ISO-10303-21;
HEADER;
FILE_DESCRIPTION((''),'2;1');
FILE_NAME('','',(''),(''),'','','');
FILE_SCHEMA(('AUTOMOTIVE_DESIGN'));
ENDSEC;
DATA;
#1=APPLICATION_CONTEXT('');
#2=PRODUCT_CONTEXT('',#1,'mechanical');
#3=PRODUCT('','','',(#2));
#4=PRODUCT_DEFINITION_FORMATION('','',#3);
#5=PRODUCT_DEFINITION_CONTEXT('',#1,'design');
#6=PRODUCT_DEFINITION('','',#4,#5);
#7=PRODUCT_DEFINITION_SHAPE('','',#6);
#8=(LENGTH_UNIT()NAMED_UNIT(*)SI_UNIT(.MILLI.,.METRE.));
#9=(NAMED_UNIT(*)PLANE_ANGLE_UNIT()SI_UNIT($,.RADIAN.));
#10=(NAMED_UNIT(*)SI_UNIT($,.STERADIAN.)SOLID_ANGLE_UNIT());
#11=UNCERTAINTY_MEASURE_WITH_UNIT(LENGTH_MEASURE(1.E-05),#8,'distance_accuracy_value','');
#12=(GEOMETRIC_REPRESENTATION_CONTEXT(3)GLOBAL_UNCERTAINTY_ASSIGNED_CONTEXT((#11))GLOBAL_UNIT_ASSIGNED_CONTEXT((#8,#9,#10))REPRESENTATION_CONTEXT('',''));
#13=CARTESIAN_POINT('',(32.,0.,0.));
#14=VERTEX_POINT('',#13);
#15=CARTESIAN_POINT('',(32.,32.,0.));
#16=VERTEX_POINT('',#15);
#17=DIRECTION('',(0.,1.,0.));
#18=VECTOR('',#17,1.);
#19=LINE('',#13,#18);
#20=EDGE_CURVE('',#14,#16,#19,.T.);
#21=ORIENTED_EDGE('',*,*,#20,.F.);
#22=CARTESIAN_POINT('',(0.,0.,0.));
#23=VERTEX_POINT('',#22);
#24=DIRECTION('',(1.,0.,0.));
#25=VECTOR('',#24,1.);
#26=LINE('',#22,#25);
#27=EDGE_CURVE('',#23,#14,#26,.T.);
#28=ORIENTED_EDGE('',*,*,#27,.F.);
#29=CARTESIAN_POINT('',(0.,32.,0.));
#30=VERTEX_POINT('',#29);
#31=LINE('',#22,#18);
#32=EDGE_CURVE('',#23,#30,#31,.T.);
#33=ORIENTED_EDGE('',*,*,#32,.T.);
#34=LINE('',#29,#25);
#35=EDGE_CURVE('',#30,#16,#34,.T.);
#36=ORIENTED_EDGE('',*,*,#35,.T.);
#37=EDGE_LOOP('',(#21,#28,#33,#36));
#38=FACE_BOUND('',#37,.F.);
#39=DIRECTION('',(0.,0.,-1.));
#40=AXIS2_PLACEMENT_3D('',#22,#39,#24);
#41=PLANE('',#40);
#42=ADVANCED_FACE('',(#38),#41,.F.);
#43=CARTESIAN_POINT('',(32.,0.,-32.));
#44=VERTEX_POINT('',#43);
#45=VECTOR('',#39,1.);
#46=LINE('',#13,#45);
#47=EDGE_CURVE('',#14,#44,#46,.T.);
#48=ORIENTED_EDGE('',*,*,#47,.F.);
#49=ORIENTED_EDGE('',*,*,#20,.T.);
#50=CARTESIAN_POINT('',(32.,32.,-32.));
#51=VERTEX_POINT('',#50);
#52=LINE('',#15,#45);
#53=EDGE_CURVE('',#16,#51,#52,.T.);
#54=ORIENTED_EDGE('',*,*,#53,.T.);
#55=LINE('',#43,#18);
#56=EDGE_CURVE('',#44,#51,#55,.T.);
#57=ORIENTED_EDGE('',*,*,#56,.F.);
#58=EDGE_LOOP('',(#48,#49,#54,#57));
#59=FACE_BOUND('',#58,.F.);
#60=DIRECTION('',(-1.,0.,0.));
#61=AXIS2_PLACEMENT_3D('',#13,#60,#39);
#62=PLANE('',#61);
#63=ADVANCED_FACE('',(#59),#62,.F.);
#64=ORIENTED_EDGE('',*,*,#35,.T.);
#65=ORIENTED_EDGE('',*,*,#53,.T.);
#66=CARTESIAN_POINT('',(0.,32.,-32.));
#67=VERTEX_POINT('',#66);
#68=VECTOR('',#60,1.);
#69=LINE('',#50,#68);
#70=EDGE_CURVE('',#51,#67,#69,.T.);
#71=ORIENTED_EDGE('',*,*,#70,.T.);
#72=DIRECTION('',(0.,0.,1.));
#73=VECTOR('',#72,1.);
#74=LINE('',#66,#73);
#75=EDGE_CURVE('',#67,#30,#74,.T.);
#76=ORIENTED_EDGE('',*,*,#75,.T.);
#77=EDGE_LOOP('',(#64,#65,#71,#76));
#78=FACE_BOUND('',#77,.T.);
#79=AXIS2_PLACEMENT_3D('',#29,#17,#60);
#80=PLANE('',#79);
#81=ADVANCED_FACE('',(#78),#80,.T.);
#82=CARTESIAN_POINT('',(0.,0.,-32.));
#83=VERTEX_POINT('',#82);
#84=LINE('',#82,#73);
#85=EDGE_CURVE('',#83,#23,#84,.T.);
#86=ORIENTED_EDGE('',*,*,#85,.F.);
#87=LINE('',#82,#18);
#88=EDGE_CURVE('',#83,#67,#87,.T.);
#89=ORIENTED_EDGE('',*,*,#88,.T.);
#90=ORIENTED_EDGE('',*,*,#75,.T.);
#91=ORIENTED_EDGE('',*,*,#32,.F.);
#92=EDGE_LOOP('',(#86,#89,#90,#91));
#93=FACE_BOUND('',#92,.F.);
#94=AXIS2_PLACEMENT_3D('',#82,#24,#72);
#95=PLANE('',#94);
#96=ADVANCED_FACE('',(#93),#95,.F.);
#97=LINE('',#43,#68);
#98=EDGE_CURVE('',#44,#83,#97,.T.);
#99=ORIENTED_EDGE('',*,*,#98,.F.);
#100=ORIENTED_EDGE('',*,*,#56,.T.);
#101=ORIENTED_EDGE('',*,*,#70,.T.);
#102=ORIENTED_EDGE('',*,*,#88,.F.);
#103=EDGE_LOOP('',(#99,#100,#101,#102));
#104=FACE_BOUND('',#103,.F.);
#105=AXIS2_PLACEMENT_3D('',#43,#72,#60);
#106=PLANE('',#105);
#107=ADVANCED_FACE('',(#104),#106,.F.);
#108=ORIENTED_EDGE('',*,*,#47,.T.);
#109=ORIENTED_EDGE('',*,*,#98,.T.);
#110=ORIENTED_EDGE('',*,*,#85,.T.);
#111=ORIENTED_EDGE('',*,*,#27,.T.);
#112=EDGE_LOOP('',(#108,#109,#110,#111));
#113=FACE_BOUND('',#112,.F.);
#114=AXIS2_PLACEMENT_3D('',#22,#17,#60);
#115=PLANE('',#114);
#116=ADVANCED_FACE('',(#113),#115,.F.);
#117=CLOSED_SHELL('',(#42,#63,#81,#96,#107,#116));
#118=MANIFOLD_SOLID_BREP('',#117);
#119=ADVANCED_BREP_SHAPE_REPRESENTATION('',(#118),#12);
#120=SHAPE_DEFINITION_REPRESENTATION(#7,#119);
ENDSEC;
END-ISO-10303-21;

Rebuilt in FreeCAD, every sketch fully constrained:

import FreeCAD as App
import Part
import Sketcher
from FreeCAD import Vector
Q = App.Units.Quantity


def add_polygon(sketch, points):
    """Adds a closed chain of lines whose ends are joined by coincident constraints."""
    first, n = sketch.GeometryCount, len(points)
    for a, b in zip(points, points[1:] + points[:1]):
        sketch.addGeometry(Part.LineSegment(App.Vector(*a, 0), App.Vector(*b, 0)), False)
    for i in range(n):
        sketch.addConstraint(Sketcher.Constraint("Coincident", first + i, 2, first + (i + 1) % n, 1))

doc = App.newDocument("Part")
params = doc.addObject("Spreadsheet::Sheet", "Params")
for row, (alias, value) in enumerate([
    ("sketch1_width", "32 mm"),
    ("pad1_length", "32 mm"),
], start=1):
    params.set(f"A{row}", alias)
    params.set(f"B{row}", "=" + value)
    params.setAlias(f"B{row}", alias)

body = doc.addObject("PartDesign::Body", "Body")

sketch1 = body.newObject("Sketcher::SketchObject", "Sketch")
sketch1.AttachmentSupport = (doc.getObject("XZ_Plane"), [""])
sketch1.MapMode = "FlatFace"
add_polygon(sketch1, [(0, -32), (0, 0), (32, 0), (32, -32)])
sketch1.addConstraint(Sketcher.Constraint("Vertical", 0))
sketch1.addConstraint(Sketcher.Constraint("Horizontal", 1))
sketch1.addConstraint(Sketcher.Constraint("Vertical", 2))
sketch1.addConstraint(Sketcher.Constraint("Horizontal", 3))
sketch1.addConstraint(Sketcher.Constraint("Coincident", 0, 2, -1, 1))
sketch1.addConstraint(Sketcher.Constraint("Equal", 3, 0))
sketch1.addConstraint(Sketcher.Constraint("DistanceX", 1, 1, 1, 2, Q("32 mm")))
sketch1.setExpression("Constraints[10]", "Params.sketch1_width")
pad1 = body.newObject("PartDesign::Pad", "Pad")
pad1.Profile = sketch1
pad1.setExpression("Length", "Params.pad1_length")
pad1.Reversed = True

doc.recompute()
